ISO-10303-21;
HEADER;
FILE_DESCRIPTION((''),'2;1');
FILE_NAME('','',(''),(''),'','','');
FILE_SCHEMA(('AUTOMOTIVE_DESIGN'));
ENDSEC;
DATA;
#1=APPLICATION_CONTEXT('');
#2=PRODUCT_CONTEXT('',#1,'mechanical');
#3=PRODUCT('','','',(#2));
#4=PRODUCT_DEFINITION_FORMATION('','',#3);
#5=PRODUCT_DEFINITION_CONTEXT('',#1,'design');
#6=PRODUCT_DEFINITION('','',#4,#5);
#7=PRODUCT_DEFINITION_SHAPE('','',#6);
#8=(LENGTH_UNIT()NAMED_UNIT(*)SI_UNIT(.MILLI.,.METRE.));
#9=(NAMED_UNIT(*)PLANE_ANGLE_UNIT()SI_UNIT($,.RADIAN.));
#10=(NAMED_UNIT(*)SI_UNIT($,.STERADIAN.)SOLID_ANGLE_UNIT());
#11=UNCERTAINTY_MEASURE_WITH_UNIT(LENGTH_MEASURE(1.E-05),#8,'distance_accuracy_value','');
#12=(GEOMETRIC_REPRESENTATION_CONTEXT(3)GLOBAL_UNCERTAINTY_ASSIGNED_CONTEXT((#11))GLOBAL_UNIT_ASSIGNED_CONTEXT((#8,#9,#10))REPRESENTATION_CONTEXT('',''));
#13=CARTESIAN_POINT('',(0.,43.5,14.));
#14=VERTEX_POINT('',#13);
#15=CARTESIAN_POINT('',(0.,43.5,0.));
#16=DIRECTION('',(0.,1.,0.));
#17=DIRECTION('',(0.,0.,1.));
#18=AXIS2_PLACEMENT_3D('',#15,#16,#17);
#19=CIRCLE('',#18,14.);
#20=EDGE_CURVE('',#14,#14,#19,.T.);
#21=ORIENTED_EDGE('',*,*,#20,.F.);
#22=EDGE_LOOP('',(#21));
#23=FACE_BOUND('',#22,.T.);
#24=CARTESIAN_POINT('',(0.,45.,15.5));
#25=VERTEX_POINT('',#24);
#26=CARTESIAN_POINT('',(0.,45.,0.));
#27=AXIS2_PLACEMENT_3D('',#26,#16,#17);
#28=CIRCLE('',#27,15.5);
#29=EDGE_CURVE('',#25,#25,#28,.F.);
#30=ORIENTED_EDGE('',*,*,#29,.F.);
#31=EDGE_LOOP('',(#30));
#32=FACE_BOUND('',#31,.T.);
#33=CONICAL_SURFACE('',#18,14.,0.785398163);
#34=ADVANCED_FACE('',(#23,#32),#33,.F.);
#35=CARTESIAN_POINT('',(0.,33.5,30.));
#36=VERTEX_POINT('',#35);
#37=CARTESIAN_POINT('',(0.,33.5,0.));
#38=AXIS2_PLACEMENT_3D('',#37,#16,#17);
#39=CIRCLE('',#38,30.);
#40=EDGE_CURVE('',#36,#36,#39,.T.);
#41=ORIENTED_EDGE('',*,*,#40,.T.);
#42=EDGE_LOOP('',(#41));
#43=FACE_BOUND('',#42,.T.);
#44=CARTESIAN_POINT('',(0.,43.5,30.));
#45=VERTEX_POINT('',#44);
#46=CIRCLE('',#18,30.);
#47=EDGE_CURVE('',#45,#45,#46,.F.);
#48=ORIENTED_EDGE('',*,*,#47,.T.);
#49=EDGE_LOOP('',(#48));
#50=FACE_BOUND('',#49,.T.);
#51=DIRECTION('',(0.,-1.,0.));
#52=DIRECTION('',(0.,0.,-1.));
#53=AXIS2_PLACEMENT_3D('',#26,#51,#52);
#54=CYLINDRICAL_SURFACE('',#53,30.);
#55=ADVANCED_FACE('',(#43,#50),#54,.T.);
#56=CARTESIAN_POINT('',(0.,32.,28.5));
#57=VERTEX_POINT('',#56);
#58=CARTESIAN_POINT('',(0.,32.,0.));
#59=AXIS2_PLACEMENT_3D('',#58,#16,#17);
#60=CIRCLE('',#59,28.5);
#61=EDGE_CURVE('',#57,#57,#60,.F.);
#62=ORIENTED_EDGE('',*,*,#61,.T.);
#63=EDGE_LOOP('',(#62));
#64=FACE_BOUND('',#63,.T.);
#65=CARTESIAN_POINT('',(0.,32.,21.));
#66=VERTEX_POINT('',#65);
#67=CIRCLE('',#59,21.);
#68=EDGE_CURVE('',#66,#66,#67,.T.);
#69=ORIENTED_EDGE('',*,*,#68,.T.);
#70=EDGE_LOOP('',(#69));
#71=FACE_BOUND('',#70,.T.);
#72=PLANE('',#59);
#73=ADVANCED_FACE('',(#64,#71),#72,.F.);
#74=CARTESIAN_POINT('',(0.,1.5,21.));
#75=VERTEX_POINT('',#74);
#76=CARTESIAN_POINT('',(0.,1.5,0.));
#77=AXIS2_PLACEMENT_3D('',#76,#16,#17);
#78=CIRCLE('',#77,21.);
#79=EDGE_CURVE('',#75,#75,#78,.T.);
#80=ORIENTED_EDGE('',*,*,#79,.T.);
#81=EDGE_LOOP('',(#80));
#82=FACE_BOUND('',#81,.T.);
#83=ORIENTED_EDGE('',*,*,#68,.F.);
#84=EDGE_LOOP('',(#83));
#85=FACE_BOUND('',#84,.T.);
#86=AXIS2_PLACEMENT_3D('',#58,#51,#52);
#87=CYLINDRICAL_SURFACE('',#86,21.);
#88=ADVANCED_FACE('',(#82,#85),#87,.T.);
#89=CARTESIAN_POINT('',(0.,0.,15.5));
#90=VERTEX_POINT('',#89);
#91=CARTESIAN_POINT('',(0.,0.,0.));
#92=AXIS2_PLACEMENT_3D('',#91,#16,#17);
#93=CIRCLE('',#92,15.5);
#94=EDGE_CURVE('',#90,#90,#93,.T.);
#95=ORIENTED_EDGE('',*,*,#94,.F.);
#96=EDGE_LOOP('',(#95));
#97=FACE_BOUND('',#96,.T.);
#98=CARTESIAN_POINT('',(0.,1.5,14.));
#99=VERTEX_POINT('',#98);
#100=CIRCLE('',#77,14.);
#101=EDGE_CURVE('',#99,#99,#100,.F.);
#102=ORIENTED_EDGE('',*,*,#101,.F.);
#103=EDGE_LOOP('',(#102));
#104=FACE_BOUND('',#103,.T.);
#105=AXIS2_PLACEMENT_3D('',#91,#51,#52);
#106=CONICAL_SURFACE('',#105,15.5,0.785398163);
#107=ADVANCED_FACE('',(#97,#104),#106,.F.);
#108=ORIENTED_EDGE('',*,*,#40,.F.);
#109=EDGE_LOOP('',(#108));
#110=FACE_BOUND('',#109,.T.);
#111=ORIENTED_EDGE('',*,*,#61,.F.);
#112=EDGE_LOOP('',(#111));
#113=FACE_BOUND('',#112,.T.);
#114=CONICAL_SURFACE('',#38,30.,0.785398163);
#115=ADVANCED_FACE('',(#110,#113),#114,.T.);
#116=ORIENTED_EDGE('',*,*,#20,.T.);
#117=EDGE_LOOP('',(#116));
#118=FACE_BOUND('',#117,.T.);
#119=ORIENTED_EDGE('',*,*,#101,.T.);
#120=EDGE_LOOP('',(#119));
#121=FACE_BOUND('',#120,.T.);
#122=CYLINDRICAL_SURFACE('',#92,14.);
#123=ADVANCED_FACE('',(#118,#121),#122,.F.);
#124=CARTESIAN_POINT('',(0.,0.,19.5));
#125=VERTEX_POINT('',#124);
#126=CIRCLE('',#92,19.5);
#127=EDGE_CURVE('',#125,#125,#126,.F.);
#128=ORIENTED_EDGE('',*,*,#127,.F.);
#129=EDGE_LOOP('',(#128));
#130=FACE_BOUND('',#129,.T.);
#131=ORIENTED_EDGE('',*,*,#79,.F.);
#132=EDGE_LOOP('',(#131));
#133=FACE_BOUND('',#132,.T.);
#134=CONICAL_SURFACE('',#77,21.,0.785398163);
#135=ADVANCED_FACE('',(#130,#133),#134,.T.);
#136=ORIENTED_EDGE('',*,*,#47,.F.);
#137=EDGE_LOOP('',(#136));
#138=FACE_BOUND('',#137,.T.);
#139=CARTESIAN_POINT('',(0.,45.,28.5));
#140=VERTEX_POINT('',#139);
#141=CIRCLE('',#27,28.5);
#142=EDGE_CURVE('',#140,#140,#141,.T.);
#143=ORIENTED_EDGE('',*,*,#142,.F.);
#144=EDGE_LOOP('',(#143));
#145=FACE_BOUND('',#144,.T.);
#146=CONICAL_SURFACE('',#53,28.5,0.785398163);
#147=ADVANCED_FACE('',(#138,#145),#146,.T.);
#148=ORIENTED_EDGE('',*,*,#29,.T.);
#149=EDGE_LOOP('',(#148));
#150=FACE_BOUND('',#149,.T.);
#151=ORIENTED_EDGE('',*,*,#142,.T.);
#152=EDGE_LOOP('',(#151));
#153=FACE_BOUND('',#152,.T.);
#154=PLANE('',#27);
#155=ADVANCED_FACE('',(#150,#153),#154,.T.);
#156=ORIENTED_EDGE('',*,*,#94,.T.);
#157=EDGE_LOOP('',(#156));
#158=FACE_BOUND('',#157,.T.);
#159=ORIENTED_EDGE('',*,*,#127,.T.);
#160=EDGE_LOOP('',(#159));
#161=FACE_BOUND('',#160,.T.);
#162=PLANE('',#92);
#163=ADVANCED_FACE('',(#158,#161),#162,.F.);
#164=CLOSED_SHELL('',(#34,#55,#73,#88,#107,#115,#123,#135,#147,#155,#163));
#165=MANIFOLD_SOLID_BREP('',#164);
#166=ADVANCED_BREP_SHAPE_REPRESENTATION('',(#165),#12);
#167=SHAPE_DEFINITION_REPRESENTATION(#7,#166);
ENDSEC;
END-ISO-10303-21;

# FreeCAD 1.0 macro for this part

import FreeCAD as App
import Part
import Sketcher
Q = App.Units.Quantity


def edges_at(feature, points):
    """Names of the edges that pass closest to the given points."""
    edges = feature.Shape.Edges
    near = lambda p: min(range(len(edges)), key=lambda i: edges[i].distToShape(Part.Vertex(*p))[0])
    return sorted({f"Edge{near(p) + 1}" for p in points})

doc = App.newDocument("Part")
params = doc.addObject("Spreadsheet::Sheet", "Params")
for row, (alias, value) in enumerate([
    ("sketch1_diameter", "42 mm"),
    ("pad1_length", "32 mm"),
    ("sketch2_diameter", "60 mm"),
    ("pad2_length", "13 mm"),
    ("sketch3_diameter", "28 mm"),
    ("chamfer_size", "1.5 mm"),
], start=1):
    params.set(f"A{row}", alias)
    params.set(f"B{row}", "=" + value)
    params.setAlias(f"B{row}", alias)

body = doc.addObject("PartDesign::Body", "Body")

sketch1 = body.newObject("Sketcher::SketchObject", "Sketch")
sketch1.AttachmentSupport = (doc.getObject("XZ_Plane"), [""])
sketch1.MapMode = "FlatFace"
sketch1.addGeometry(Part.Circle(App.Vector(0, 0, 0), App.Vector(0, 0, 1), 21), False)
sketch1.addConstraint([
    Sketcher.Constraint("Coincident", 0, 3, -1, 1),
    Sketcher.Constraint("Diameter", 0, Q("42 mm")),
])
sketch1.setExpression("Constraints[1]", "Params.sketch1_diameter")
pad1 = body.newObject("PartDesign::Pad", "Pad")
pad1.Profile = sketch1
pad1.setExpression("Length", "Params.pad1_length")
pad1.Reversed = True

sketch2 = body.newObject("Sketcher::SketchObject", "Sketch001")
sketch2.AttachmentSupport = (doc.getObject("XZ_Plane"), [""])
sketch2.MapMode = "FlatFace"
sketch2.AttachmentOffset = App.Placement(App.Vector(0, 0, -32), App.Rotation())
sketch2.addGeometry(Part.Circle(App.Vector(0, 0, 0), App.Vector(0, 0, 1), 30), False)
sketch2.addConstraint([
    Sketcher.Constraint("Coincident", 0, 3, -1, 1),
    Sketcher.Constraint("Diameter", 0, Q("60 mm")),
])
sketch2.setExpression("Constraints[1]", "Params.sketch2_diameter")
pad2 = body.newObject("PartDesign::Pad", "Pad001")
pad2.Profile = sketch2
pad2.setExpression("Length", "Params.pad2_length")
pad2.Reversed = True

sketch3 = body.newObject("Sketcher::SketchObject", "Sketch002")
sketch3.AttachmentSupport = (doc.getObject("XZ_Plane"), [""])
sketch3.MapMode = "FlatFace"
sketch3.AttachmentOffset = App.Placement(App.Vector(0, 0, -45), App.Rotation())
sketch3.addGeometry(Part.Circle(App.Vector(0, 0, 0), App.Vector(0, 0, 1), 14), False)
sketch3.addConstraint([
    Sketcher.Constraint("Coincident", 0, 3, -1, 1),
    Sketcher.Constraint("Diameter", 0, Q("28 mm")),
])
sketch3.setExpression("Constraints[1]", "Params.sketch3_diameter")
pocket1 = body.newObject("PartDesign::Pocket", "Pocket")
pocket1.Profile = sketch3
pocket1.Type = "ThroughAll"
pocket1.Reversed = True
doc.recompute()

chamfer = body.newObject("PartDesign::Chamfer", "Chamfer")
chamfer.Base = (pocket1, edges_at(pocket1, [
    (-14, 0, 0),
    (-14, 45, 0),
    (-21, 0, 0),
    (-30, 32, 0),
    (-30, 45, 0),
]))
chamfer.setExpression("Size", "Params.chamfer_size")

doc.recompute()
